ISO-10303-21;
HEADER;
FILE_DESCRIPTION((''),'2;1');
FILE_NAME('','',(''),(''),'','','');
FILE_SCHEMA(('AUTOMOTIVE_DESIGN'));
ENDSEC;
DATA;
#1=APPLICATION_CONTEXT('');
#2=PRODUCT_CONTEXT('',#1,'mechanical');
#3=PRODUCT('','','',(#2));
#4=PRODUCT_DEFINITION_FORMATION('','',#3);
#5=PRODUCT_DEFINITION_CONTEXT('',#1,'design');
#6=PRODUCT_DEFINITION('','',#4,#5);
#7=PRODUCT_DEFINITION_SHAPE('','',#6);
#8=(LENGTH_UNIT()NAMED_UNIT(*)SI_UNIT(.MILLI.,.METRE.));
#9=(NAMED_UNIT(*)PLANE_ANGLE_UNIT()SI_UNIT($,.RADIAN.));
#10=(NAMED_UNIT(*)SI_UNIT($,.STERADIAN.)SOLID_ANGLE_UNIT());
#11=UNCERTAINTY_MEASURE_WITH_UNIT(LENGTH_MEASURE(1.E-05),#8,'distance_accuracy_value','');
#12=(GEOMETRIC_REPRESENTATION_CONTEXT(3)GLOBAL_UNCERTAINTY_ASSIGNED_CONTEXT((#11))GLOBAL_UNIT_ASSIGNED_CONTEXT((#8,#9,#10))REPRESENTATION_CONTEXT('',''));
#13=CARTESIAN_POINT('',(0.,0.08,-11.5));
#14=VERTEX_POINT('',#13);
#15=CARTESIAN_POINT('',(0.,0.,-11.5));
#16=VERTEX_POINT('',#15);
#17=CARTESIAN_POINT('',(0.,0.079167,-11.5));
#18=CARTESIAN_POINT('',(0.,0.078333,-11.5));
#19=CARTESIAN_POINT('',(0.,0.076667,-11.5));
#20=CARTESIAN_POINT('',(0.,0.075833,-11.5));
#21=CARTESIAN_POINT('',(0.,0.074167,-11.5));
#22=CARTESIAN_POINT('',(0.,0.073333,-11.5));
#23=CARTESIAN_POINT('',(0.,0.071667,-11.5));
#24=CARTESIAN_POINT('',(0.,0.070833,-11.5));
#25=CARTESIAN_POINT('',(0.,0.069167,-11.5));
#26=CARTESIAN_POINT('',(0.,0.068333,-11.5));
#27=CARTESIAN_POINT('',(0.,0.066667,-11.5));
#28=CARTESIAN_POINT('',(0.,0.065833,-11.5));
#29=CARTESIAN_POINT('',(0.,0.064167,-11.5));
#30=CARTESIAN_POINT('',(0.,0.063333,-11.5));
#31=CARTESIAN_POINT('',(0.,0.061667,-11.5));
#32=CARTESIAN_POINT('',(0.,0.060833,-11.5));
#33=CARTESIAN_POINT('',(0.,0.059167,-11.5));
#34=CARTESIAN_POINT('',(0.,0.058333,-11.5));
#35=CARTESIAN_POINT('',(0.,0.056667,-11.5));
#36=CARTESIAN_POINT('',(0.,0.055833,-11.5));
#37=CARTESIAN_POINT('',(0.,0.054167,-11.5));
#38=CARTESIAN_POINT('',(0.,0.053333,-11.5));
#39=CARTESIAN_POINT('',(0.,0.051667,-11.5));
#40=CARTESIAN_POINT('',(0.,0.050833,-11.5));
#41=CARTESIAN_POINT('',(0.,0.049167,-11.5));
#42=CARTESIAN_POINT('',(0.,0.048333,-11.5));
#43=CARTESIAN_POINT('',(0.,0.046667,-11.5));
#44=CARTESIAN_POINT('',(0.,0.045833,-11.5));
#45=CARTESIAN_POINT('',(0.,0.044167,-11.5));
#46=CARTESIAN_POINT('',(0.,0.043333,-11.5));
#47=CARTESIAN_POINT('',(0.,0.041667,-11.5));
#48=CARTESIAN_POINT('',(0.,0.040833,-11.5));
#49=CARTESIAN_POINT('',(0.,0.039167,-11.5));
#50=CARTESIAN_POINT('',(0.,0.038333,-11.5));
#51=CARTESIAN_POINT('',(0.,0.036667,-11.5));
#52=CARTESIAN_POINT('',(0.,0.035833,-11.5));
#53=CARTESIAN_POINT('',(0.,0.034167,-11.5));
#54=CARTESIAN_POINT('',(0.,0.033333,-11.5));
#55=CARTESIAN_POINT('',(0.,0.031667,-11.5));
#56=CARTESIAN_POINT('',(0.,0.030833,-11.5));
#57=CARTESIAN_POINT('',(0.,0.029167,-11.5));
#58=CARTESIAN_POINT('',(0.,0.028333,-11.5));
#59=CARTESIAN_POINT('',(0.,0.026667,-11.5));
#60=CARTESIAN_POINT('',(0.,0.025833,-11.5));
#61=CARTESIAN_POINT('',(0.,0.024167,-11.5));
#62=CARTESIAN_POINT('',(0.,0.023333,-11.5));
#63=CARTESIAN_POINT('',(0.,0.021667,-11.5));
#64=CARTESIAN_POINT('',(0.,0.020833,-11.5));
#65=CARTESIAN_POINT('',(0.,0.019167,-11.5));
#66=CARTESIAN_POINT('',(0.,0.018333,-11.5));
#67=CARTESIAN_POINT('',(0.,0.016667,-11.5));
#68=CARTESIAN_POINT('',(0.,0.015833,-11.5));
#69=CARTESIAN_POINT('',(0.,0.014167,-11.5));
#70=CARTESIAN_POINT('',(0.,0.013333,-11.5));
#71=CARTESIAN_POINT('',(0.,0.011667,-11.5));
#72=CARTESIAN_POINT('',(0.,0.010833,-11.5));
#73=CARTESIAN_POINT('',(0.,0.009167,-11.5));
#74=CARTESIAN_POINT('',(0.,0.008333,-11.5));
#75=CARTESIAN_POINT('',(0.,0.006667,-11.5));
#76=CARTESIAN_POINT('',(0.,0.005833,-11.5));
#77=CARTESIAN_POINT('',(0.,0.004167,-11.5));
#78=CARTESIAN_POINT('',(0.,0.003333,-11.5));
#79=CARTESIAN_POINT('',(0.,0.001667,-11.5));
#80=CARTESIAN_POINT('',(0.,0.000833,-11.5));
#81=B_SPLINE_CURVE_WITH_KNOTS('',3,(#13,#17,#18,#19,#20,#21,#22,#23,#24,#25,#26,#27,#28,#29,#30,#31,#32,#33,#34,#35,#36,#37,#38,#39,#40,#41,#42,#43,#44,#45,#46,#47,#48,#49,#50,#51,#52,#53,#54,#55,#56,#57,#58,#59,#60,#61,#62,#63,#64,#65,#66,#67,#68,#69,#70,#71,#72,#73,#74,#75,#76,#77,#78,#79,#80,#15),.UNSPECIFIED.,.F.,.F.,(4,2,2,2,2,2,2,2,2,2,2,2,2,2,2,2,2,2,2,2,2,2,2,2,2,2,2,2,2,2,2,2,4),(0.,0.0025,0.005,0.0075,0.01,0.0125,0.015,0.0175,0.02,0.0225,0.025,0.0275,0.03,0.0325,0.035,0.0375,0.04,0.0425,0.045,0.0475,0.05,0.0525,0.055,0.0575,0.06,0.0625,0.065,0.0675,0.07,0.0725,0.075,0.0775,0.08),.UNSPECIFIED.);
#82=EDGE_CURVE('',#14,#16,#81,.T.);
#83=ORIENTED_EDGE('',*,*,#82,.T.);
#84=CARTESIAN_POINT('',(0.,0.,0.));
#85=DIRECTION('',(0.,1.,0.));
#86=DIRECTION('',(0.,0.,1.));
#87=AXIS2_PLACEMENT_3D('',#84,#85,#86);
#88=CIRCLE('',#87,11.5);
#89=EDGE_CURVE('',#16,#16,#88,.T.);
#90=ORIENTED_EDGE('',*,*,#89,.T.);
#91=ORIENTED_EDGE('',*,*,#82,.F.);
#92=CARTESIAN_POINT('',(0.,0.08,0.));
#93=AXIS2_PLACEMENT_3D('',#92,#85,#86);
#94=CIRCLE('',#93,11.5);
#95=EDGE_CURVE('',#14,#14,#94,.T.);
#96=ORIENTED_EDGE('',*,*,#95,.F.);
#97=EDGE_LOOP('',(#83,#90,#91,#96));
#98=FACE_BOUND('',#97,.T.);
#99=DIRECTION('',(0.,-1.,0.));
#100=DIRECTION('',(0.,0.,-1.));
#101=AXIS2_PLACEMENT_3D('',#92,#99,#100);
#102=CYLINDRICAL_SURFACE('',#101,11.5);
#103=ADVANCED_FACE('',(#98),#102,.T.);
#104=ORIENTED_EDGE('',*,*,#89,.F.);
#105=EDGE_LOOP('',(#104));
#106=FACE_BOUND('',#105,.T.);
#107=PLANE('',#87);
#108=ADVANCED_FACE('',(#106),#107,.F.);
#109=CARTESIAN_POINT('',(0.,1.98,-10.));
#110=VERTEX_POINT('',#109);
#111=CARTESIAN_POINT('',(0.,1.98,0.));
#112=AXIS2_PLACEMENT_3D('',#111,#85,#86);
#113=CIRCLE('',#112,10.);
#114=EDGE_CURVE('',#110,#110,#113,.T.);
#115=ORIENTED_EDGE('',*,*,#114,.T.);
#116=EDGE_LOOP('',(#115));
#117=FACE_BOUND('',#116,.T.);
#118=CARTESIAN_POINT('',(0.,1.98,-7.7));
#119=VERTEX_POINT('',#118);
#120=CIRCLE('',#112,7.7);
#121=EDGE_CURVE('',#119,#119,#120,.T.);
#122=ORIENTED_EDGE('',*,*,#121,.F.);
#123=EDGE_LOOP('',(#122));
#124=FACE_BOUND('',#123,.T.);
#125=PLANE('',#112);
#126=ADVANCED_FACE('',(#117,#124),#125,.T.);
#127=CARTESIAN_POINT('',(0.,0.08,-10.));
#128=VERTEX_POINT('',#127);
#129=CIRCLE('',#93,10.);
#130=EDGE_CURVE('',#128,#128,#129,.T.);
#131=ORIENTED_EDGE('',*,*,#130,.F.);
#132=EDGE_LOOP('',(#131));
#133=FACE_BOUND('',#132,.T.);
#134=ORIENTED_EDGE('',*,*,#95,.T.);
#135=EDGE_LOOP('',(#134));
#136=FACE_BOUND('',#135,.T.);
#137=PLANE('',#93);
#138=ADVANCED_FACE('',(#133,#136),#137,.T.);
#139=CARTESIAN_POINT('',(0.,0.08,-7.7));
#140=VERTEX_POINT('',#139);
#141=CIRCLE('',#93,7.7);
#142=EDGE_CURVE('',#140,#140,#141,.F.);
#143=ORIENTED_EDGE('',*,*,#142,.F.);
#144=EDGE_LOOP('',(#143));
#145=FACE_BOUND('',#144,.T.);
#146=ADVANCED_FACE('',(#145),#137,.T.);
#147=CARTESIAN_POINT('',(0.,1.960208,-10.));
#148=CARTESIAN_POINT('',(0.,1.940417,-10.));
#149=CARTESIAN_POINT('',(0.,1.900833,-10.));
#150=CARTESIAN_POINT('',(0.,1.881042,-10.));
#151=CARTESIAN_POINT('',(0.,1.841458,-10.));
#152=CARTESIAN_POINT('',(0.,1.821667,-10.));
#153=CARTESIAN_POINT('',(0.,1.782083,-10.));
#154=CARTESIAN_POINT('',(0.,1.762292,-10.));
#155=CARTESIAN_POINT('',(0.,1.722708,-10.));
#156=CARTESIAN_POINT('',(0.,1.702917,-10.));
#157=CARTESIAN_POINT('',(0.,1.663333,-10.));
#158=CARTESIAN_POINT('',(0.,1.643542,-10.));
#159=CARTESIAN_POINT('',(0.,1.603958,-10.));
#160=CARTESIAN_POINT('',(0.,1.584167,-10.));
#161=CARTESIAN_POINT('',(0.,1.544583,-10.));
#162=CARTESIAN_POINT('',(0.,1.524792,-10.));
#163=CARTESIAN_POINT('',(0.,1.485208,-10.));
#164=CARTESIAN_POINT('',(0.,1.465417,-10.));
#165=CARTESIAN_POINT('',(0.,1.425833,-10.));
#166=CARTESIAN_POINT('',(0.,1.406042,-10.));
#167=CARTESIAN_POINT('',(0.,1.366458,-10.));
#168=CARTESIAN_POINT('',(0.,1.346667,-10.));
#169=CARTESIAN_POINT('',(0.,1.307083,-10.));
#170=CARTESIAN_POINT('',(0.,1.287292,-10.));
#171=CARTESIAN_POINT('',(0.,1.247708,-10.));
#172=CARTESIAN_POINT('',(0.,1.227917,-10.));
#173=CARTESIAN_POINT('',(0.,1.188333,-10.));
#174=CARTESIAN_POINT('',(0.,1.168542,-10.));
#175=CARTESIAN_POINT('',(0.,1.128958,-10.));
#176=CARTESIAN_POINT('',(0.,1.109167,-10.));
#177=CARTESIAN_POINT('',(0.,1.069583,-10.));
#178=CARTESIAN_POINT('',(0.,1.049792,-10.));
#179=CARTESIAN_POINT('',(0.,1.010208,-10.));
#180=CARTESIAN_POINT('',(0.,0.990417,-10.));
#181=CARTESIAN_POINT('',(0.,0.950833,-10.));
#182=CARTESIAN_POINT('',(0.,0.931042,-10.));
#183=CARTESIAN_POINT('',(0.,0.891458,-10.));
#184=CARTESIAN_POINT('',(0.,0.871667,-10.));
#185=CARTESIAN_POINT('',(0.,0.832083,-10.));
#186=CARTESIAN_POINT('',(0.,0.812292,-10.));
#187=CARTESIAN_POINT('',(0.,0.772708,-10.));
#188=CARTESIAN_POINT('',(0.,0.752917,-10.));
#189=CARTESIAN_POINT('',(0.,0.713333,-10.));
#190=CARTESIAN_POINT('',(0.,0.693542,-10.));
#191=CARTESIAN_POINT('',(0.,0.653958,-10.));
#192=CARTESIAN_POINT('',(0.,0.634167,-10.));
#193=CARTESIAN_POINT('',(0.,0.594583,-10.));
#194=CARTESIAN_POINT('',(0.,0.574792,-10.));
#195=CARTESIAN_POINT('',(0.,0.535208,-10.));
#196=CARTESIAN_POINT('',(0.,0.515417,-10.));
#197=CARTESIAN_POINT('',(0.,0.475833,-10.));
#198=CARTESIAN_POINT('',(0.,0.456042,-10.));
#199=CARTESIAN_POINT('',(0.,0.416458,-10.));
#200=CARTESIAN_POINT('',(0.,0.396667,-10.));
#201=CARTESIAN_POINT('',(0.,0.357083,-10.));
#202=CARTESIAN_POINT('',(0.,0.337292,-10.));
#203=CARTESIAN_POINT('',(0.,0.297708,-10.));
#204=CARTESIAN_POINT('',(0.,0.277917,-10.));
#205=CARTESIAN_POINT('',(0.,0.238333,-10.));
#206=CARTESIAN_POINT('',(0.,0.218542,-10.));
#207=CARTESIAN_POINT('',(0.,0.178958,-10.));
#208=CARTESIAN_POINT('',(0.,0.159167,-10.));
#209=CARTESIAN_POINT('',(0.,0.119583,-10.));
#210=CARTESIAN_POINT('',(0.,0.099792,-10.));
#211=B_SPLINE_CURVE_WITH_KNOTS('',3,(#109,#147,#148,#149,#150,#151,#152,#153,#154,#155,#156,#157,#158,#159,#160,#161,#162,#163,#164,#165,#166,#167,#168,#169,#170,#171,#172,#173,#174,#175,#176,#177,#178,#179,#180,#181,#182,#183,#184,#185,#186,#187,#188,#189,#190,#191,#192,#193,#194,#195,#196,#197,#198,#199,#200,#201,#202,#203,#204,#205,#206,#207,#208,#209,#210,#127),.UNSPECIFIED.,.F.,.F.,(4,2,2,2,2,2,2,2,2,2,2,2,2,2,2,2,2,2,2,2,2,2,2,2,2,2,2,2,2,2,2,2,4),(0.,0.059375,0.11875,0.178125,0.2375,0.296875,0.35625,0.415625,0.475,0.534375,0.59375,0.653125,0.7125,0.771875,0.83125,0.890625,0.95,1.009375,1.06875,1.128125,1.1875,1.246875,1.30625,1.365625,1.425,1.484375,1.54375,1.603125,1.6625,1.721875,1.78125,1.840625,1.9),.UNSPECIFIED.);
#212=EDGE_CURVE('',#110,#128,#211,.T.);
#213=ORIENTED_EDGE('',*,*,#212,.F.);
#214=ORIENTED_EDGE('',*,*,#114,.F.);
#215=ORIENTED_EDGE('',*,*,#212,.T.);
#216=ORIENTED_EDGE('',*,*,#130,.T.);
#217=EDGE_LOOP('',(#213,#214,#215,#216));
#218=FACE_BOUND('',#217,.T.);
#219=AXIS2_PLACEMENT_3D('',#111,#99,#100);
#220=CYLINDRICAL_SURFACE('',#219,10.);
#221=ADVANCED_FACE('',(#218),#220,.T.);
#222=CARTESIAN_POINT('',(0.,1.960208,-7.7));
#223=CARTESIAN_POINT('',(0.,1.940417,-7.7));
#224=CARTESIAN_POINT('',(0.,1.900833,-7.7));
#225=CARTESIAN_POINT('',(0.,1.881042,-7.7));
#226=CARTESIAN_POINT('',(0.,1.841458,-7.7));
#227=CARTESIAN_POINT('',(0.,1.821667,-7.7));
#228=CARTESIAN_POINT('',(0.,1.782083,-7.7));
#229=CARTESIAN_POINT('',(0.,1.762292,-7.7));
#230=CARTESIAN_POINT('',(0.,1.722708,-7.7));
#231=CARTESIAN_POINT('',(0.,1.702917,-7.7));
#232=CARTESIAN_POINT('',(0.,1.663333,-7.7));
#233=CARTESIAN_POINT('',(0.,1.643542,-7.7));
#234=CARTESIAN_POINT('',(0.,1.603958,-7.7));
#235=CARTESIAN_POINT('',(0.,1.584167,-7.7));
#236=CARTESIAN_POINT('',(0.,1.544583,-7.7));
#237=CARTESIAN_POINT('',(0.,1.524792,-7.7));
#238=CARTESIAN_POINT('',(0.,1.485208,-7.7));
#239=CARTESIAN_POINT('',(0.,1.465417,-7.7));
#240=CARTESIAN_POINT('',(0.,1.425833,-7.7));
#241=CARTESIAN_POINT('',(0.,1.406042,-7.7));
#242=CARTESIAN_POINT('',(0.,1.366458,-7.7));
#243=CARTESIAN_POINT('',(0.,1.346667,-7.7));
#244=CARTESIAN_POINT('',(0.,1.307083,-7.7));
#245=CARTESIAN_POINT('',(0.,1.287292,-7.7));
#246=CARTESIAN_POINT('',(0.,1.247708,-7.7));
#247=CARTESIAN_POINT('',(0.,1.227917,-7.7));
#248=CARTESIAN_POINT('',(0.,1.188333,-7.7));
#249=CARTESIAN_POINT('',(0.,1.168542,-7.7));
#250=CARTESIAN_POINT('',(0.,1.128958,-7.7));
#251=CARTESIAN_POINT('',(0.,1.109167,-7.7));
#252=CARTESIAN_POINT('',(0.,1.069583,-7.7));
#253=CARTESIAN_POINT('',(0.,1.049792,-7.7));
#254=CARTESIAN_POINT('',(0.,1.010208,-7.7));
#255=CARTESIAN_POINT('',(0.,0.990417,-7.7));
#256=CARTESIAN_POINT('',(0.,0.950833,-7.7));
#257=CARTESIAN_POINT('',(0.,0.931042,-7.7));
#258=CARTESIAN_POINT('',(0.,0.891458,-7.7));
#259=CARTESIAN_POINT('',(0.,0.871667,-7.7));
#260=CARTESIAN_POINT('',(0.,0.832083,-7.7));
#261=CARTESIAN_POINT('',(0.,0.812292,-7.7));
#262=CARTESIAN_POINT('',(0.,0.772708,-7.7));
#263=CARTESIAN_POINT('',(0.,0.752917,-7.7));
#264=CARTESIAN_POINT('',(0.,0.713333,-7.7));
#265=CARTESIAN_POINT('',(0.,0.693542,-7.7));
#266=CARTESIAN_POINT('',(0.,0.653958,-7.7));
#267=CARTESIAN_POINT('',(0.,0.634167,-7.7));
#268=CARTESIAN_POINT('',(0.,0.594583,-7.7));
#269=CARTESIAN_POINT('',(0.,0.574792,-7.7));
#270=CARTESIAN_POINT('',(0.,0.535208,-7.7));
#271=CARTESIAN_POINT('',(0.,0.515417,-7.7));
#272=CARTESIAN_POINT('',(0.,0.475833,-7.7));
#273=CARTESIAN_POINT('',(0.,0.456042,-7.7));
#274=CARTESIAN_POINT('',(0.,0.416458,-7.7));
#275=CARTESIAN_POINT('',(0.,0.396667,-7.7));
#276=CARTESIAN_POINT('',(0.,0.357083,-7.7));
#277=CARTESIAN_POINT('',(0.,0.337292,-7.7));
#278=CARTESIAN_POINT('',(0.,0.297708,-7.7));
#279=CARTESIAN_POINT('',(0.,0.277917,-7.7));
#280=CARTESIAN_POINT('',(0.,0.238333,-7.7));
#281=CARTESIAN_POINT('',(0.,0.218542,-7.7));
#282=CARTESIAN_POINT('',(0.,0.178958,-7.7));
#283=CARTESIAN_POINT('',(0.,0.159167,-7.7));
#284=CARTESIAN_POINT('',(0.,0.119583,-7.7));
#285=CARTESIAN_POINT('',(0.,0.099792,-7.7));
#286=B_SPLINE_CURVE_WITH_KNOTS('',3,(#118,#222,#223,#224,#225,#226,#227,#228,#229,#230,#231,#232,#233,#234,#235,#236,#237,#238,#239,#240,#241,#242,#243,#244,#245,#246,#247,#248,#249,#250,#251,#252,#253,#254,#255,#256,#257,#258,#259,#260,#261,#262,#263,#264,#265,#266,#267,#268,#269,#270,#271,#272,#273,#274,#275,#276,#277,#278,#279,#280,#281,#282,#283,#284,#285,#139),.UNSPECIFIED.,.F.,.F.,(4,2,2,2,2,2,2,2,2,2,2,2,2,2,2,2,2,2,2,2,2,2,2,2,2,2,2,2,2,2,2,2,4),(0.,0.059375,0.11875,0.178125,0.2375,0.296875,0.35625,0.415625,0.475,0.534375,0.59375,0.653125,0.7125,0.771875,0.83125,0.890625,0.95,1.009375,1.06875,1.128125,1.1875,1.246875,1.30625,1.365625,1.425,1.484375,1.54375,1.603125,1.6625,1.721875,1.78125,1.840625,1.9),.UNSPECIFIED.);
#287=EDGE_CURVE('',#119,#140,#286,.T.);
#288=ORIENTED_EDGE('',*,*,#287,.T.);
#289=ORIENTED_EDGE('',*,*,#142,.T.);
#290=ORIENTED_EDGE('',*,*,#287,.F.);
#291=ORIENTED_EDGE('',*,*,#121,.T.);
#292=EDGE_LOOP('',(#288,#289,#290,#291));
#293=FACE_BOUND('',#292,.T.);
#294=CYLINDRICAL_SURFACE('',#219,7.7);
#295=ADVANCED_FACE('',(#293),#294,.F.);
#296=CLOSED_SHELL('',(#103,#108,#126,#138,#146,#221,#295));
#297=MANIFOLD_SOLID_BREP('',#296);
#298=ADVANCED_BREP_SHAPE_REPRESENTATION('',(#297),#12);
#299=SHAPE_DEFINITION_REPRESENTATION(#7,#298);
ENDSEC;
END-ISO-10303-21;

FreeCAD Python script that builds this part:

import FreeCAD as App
import Part
import Sketcher
from FreeCAD import Vector
Q = App.Units.Quantity

doc = App.newDocument("Part")
params = doc.addObject("Spreadsheet::Sheet", "Params")
for row, (alias, value) in enumerate([
    ("sketch1_diameter", "23 mm"),
    ("pad1_length", "0.08 mm"),
    ("sketch2_diameter", "20 mm"),
    ("sketch2_diameter2", "15.4 mm"),
    ("pad2_length", "1.9 mm"),
], start=1):
    params.set(f"A{row}", alias)
    params.set(f"B{row}", "=" + value)
    params.setAlias(f"B{row}", alias)

body = doc.addObject("PartDesign::Body", "Body")

# Sketch on XZ plane
sketch1 = doc.addObject("Sketcher::SketchObject", "Sketch")
body.addObject(sketch1)
sketch1.AttachmentSupport = (doc.XZ_Plane, [""])
sketch1.MapMode = "FlatFace"
sketch1.addGeometry(Part.Circle(Vector(0, 0, 0), Vector(0, 0, 1), 11.5), False)
sketch1.addConstraint([
    Sketcher.Constraint("Coincident", 0, 3, -1, 1),
    Sketcher.Constraint("Diameter", 0, Q("23 mm")),
])
sketch1.setExpression("Constraints[1]", "Params.sketch1_diameter")
pad1 = doc.addObject("PartDesign::Pad", "Pad")
body.addObject(pad1)
pad1.Profile = sketch1
pad1.setExpression("Length", "Params.pad1_length")
pad1.Reversed = True

# Sketch on XZ plane
sketch2 = doc.addObject("Sketcher::SketchObject", "Sketch001")
body.addObject(sketch2)
sketch2.AttachmentSupport = (doc.XZ_Plane, [""])
sketch2.MapMode = "FlatFace"
sketch2.AttachmentOffset = App.Placement(Vector(0, 0, -0.08), App.Rotation())
sketch2.addGeometry([
    Part.Circle(Vector(0, 0, 0), Vector(0, 0, 1), 10),
    Part.Circle(Vector(0, 0, 0), Vector(0, 0, 1), 7.7),
], False)
sketch2.addConstraint([
    Sketcher.Constraint("Coincident", 0, 3, -1, 1),
    Sketcher.Constraint("Coincident", 1, 3, -1, 1),
    Sketcher.Constraint("Diameter", 0, Q("20 mm")),
    Sketcher.Constraint("Diameter", 1, Q("15.4 mm")),
])
sketch2.setExpression("Constraints[2]", "Params.sketch2_diameter")
sketch2.setExpression("Constraints[3]", "Params.sketch2_diameter2")
pad2 = doc.addObject("PartDesign::Pad", "Pad001")
body.addObject(pad2)
pad2.Profile = sketch2
pad2.setExpression("Length", "Params.pad2_length")
pad2.Reversed = True

doc.recompute()
